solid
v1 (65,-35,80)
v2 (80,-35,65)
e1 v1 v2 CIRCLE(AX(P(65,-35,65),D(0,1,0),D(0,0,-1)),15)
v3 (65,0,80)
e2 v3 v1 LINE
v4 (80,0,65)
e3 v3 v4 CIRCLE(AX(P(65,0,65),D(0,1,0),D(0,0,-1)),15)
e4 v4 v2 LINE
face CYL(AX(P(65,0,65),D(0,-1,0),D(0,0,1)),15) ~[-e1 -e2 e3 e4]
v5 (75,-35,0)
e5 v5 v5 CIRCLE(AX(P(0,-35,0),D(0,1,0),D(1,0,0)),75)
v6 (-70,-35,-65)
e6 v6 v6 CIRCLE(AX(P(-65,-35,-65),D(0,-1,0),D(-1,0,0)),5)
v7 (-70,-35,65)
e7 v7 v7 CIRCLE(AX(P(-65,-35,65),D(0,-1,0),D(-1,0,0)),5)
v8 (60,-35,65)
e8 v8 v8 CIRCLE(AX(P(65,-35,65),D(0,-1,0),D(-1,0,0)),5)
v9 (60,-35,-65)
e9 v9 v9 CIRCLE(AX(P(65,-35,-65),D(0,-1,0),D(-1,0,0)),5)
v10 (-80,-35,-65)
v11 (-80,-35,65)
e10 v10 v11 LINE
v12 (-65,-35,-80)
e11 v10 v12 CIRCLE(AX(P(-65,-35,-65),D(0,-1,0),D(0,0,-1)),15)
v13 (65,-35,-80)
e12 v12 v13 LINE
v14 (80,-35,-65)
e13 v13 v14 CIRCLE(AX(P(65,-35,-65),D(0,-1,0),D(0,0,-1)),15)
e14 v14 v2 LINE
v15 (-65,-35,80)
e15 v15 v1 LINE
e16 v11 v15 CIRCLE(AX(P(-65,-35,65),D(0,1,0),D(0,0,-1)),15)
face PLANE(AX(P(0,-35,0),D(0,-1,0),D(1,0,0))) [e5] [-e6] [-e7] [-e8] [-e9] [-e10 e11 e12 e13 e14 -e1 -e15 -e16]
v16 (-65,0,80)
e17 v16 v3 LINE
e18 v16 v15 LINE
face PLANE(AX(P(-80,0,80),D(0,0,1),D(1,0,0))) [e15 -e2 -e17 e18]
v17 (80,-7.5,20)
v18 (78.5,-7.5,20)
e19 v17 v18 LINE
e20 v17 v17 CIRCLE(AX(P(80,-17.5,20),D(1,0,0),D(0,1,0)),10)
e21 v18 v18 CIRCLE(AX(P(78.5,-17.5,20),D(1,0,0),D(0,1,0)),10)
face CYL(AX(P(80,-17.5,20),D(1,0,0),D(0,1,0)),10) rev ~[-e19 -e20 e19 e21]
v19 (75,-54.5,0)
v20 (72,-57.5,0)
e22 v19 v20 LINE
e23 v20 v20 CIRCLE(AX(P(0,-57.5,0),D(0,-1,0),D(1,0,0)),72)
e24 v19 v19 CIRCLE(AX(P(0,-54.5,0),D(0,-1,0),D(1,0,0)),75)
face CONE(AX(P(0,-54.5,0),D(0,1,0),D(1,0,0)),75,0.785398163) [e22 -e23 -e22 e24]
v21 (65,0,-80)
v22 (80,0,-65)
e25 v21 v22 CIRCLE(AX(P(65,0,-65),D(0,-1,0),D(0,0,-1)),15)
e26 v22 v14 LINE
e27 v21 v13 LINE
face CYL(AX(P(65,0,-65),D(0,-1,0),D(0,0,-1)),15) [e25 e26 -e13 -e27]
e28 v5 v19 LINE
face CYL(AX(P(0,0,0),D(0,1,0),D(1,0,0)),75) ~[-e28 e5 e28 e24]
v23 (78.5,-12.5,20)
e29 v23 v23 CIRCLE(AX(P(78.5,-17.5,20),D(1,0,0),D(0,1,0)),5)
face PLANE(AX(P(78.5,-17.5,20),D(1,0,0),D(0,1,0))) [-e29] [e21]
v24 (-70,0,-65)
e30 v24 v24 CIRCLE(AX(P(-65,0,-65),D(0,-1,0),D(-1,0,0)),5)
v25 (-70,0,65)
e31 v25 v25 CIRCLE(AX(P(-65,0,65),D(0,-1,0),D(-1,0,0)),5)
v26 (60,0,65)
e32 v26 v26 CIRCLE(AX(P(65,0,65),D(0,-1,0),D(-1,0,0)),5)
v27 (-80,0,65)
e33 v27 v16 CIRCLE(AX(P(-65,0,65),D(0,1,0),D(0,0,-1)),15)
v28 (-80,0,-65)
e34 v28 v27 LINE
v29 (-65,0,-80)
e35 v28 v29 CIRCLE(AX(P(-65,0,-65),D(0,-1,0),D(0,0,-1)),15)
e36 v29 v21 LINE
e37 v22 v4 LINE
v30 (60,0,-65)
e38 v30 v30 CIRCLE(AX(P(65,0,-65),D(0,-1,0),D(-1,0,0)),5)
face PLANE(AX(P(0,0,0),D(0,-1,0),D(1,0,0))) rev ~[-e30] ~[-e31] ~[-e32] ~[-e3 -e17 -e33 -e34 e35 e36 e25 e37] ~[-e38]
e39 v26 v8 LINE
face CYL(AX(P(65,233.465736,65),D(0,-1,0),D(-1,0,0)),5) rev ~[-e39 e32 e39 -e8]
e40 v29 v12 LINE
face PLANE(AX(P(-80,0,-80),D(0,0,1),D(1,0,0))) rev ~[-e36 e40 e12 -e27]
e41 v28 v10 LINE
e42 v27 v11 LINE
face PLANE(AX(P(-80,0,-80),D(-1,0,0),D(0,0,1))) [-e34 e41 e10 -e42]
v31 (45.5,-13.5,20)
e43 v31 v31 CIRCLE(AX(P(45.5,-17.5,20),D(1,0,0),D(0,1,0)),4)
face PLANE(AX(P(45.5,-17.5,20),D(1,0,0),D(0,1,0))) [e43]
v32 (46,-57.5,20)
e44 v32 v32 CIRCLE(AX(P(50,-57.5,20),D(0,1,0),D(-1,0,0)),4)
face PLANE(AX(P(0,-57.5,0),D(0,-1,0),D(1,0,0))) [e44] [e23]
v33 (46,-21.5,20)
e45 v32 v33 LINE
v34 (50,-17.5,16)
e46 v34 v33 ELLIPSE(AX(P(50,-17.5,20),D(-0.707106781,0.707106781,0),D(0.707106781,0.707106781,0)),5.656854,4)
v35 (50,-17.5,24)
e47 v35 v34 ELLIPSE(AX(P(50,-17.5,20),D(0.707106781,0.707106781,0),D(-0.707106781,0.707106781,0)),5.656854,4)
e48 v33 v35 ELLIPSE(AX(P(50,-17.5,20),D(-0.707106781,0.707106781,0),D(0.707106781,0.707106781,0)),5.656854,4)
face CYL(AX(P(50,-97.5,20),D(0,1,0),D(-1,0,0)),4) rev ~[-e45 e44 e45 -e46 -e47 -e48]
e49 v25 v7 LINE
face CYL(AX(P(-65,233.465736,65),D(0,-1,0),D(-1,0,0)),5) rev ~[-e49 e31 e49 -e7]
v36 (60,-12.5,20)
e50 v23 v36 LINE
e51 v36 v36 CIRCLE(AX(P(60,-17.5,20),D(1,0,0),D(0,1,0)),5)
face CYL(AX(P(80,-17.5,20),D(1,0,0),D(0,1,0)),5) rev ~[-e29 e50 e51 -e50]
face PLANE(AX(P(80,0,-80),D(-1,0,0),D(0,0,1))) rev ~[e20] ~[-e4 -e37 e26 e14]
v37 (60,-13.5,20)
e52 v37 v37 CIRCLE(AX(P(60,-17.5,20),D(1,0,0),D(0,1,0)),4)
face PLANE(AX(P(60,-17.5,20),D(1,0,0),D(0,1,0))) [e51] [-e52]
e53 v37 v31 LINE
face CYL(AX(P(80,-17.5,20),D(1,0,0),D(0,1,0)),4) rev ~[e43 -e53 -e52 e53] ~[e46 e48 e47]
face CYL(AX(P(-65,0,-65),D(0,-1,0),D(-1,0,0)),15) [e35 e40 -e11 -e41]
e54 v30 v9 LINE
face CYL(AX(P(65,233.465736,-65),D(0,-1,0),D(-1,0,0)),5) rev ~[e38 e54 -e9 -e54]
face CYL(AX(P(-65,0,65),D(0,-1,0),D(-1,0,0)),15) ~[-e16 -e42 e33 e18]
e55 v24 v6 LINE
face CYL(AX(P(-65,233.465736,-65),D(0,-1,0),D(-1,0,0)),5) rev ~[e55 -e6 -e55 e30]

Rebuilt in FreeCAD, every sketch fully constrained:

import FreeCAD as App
import Part
import Sketcher
from FreeCAD import Vector


def edges_at(feature, points):
    """Names of the edges that pass closest to the given points."""
    edges = feature.Shape.Edges
    near = lambda p: min(range(len(edges)), key=lambda i: edges[i].distToShape(Part.Vertex(*p))[0])
    return sorted({f"Edge{near(p) + 1}" for p in points})


def add_polygon(sketch, points):
    """Adds a closed chain of lines whose ends are joined by coincident constraints."""
    first, n = sketch.GeometryCount, len(points)
    for a, b in zip(points, points[1:] + points[:1]):
        sketch.addGeometry(Part.LineSegment(App.Vector(*a, 0), App.Vector(*b, 0)), False)
    for i in range(n):
        sketch.addConstraint(Sketcher.Constraint("Coincident", first + i, 2, first + (i + 1) % n, 1))

doc = App.newDocument("Part")
body = doc.addObject("PartDesign::Body", "Body")

sketch1 = doc.addObject("Sketcher::SketchObject", "Sketch")
body.addObject(sketch1)
sketch1.AttachmentSupport = (doc.XZ_Plane, [""])
sketch1.MapMode = "FlatFace"
add_polygon(sketch1, [(-80, 80), (-80, -80), (80, -80), (80, 80)])
sketch1.addConstraint([
    Sketcher.Constraint("Vertical", 0),
    Sketcher.Constraint("Horizontal", 1),
    Sketcher.Constraint("Vertical", 2),
    Sketcher.Constraint("Horizontal", 3),
    Sketcher.Constraint("Symmetric", 0, 2, 2, 2, -1, 1),
    Sketcher.Constraint("Equal", 3, 0),
    Sketcher.Constraint("DistanceX", 1, 1, 1, 2, 160.0),
])
pad1 = doc.addObject("PartDesign::Pad", "Pad")
body.addObject(pad1)
pad1.Profile = sketch1
pad1.Length = 35

sketch2 = doc.addObject("Sketcher::SketchObject", "Sketch001")
body.addObject(sketch2)
sketch2.AttachmentSupport = (doc.XZ_Plane, [""])
sketch2.MapMode = "FlatFace"
sketch2.addGeometry(Part.Circle(Vector(0, 0, 0), Vector(0, 0, 1), 75), False)
sketch2.addConstraint([
    Sketcher.Constraint("Coincident", 0, 3, -1, 1),
    Sketcher.Constraint("Diameter", 0, 150.0),
])
pad2 = doc.addObject("PartDesign::Pad", "Pad001")
body.addObject(pad2)
pad2.Profile = sketch2
pad2.Length = 57.5
doc.recompute()

chamfer = doc.addObject("PartDesign::Chamfer", "Chamfer")
body.addObject(chamfer)
chamfer.Base = (pad2, edges_at(pad2, [(-75, -57.5, 0)]))
chamfer.ChamferType = "Two distances"
chamfer.Size = 3
chamfer.Size2 = 3
doc.recompute()

fillet = doc.addObject("PartDesign::Fillet", "Fillet")
body.addObject(fillet)
fillet.Base = (chamfer, edges_at(chamfer, [
    (-80, -17.5, 80),
    (-80, -17.5, -80),
    (80, -17.5, -80),
    (80, -17.5, 80),
]))
fillet.Radius = 15

sketch3 = doc.addObject("Sketcher::SketchObject", "Sketch002")
body.addObject(sketch3)
sketch3.AttachmentSupport = (doc.XZ_Plane, [""])
sketch3.MapMode = "FlatFace"
sketch3.addGeometry([
    Part.Circle(Vector(-65, -65, 0), Vector(0, 0, 1), 5),
    Part.Circle(Vector(65, -65, 0), Vector(0, 0, 1), 5),
    Part.Circle(Vector(65, 65, 0), Vector(0, 0, 1), 5),
    Part.Circle(Vector(-65, 65, 0), Vector(0, 0, 1), 5),
], False)
sketch3.addConstraint([
    Sketcher.Constraint("Equal", 0, 1),
    Sketcher.Constraint("Equal", 1, 2),
    Sketcher.Constraint("Equal", 2, 3),
    Sketcher.Constraint("Symmetric", 0, 3, 2, 3, -1, 1),
    Sketcher.Constraint("Symmetric", 1, 3, 3, 3, -1, 1),
    Sketcher.Constraint("Symmetric", 0, 3, 1, 3, -2),
    Sketcher.Constraint("Diameter", 0, 10.0),
    Sketcher.Constraint("DistanceX", 0, 3, -1, 1, 65.0),
    Sketcher.Constraint("DistanceY", 0, 3, -1, 1, 65.0),
])
doc.recompute()
hole = doc.addObject("PartDesign::Hole", "Hole")
body.addObject(hole)
hole.Profile = sketch3
hole.ThreadType = "None"
hole.Diameter = 10
hole.DepthType = "ThroughAll"
hole.Reversed = True

sketch4 = doc.addObject("Sketcher::SketchObject", "Sketch003")
body.addObject(sketch4)
sketch4.AttachmentSupport = (doc.XZ_Plane, [""])
sketch4.MapMode = "FlatFace"
sketch4.AttachmentOffset = App.Placement(Vector(0, 0, 57.5), App.Rotation())
sketch4.addGeometry(Part.Circle(Vector(50, 20, 0), Vector(0, 0, 1), 4), False)
sketch4.addConstraint([
    Sketcher.Constraint("Diameter", 0, 8.0),
    Sketcher.Constraint("DistanceX", -1, 1, 0, 3, 50.0),
    Sketcher.Constraint("DistanceY", -1, 1, 0, 3, 20.0),
])
doc.recompute()
hole2 = doc.addObject("PartDesign::Hole", "Hole001")
body.addObject(hole2)
hole2.Profile = sketch4
hole2.ThreadType = "None"
hole2.Diameter = 8
hole2.DepthType = "Dimension"
hole2.Depth = 40
hole2.DrillPoint = "Flat"

sketch5 = doc.addObject("Sketcher::SketchObject", "Sketch004")
body.addObject(sketch5)
sketch5.AttachmentSupport = (doc.YZ_Plane, [""])
sketch5.MapMode = "FlatFace"
sketch5.AttachmentOffset = App.Placement(Vector(0, 0, 80), App.Rotation())
sketch5.addGeometry(Part.Circle(Vector(-17.5, 20, 0), Vector(0, 0, 1), 4), False)
sketch5.addConstraint([
    Sketcher.Constraint("Diameter", 0, 8.0),
    Sketcher.Constraint("DistanceY", -1, 1, 0, 3, 20.0),
    Sketcher.Constraint("DistanceX", 0, 3, -1, 1, 17.5),
])
pocket1 = doc.addObject("PartDesign::Pocket", "Pocket")
body.addObject(pocket1)
pocket1.Profile = sketch5
pocket1.Length = 34.5

sketch6 = doc.addObject("Sketcher::SketchObject", "Sketch005")
body.addObject(sketch6)
sketch6.AttachmentSupport = (doc.YZ_Plane, [""])
sketch6.MapMode = "FlatFace"
sketch6.AttachmentOffset = App.Placement(Vector(0, 0, 80), App.Rotation())
sketch6.addGeometry([
    Part.Circle(Vector(-17.5, 20, 0), Vector(0, 0, 1), 5),
    Part.Circle(Vector(-17.5, 20, 0), Vector(0, 0, 1), 4),
], False)
sketch6.addConstraint([
    Sketcher.Constraint("Coincident", 1, 3, 0, 3),
    Sketcher.Constraint("Diameter", 0, 10.0),
    Sketcher.Constraint("Diameter", 1, 8.0),
    Sketcher.Constraint("DistanceY", -1, 1, 0, 3, 20.0),
    Sketcher.Constraint("DistanceX", 0, 3, -1, 1, 17.5),
])
pocket2 = doc.addObject("PartDesign::Pocket", "Pocket001")
body.addObject(pocket2)
pocket2.Profile = sketch6
pocket2.Length = 20

sketch7 = doc.addObject("Sketcher::SketchObject", "Sketch006")
body.addObject(sketch7)
sketch7.AttachmentSupport = (doc.YZ_Plane, [""])
sketch7.MapMode = "FlatFace"
sketch7.AttachmentOffset = App.Placement(Vector(0, 0, 80), App.Rotation())
sketch7.addGeometry([
    Part.Circle(Vector(-18, 20, 0), Vector(0, 0, 1), 10),
    Part.Circle(Vector(-18, 20, 0), Vector(0, 0, 1), 5),
], False)
sketch7.addConstraint([
    Sketcher.Constraint("Coincident", 1, 3, 0, 3),
    Sketcher.Constraint("Diameter", 0, 20.0),
    Sketcher.Constraint("Diameter", 1, 10.0),
    Sketcher.Constraint("DistanceY", -1, 1, 0, 3, 20.0),
    Sketcher.Constraint("DistanceX", 0, 3, -1, 1, 17.5),
])
pocket3 = doc.addObject("PartDesign::Pocket", "Pocket002")
body.addObject(pocket3)
pocket3.Profile = sketch7
pocket3.Length = 1.5

doc.recompute()
